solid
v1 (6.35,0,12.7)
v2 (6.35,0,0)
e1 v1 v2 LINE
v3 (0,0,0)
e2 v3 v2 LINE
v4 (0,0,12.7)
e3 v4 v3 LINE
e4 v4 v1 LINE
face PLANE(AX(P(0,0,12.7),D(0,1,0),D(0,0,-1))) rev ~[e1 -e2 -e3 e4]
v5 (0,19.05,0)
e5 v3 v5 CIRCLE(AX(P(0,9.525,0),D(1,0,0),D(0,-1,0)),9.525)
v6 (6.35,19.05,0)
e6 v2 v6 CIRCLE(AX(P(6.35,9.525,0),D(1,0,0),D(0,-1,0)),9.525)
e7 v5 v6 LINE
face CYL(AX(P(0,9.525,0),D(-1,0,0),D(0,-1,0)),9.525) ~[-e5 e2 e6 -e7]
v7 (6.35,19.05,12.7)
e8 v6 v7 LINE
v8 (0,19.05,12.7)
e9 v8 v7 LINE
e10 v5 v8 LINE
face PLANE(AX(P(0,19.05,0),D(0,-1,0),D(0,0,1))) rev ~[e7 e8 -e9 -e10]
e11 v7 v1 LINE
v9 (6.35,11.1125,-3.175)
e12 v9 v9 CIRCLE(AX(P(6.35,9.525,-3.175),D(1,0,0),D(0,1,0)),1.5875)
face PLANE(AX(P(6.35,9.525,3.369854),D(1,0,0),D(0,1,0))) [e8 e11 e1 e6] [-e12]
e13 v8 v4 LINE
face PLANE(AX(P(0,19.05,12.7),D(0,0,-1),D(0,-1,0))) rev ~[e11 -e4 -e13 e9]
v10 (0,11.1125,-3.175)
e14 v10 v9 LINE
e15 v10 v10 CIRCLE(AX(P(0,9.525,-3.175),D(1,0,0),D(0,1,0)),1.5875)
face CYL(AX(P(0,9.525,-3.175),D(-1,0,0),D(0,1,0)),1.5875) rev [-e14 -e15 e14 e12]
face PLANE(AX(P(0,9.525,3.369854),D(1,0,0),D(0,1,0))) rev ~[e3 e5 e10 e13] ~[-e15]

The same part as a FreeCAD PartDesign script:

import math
import FreeCAD as App
import Part
import Sketcher
from FreeCAD import Vector
Q = App.Units.Quantity

doc = App.newDocument("Part")
body = doc.addObject("PartDesign::Body", "Body")

sketch1 = body.newObject("Sketcher::SketchObject", "Sketch")
sketch1.AttachmentSupport = (doc.getObject("YZ_Plane"), [""])
sketch1.MapMode = "FlatFace"
sketch1.addGeometry(Part.LineSegment(Vector(0, 12.7, 0), Vector(0, 0, 0)), False)
sketch1.addGeometry(Part.ArcOfCircle(Part.Circle(Vector(9.5, 0, 0), Vector(0, 0, 1), 9.5), math.radians(180), math.radians(360)), False)
sketch1.addGeometry(Part.LineSegment(Vector(19.1, 0, 0), Vector(19.1, 12.7, 0)), False)
sketch1.addGeometry(Part.LineSegment(Vector(19.1, 12.7, 0), Vector(0, 12.7, 0)), False)
sketch1.addGeometry(Part.Circle(Vector(9.5, -3.2, 0), Vector(0, 0, 1), 1.6), False)
sketch1.addConstraint(Sketcher.Constraint("Tangent", 0, 2, 1, 1))
sketch1.addConstraint(Sketcher.Constraint("Tangent", 1, 2, 2, 1))
sketch1.addConstraint(Sketcher.Constraint("Coincident", 2, 2, 3, 1))
sketch1.addConstraint(Sketcher.Constraint("Coincident", 3, 2, 0, 1))
sketch1.addConstraint(Sketcher.Constraint("Vertical", 0))
sketch1.addConstraint(Sketcher.Constraint("Vertical", 2))
sketch1.addConstraint(Sketcher.Constraint("Horizontal", 3))
sketch1.addConstraint(Sketcher.Constraint("Coincident", 0, 2, -1, 1))
sketch1.addConstraint(Sketcher.Constraint("Vertical", 1, 3, 4, 3))
sketch1.addConstraint(Sketcher.Constraint("Diameter", 4, Q("0.125 in")))
sketch1.addConstraint(Sketcher.Constraint("DistanceY", 0, 2, 0, 1, Q("0.5 in")))
sketch1.addConstraint(Sketcher.Constraint("Radius", 1, Q("0.375 in")))
sketch1.addConstraint(Sketcher.Constraint("DistanceY", 4, 3, -1, 1, Q("0.125 in")))
pad1 = body.newObject("PartDesign::Pad", "Pad")
pad1.Profile = sketch1
pad1.Length = Q("0.25 in")

doc.recompute()
